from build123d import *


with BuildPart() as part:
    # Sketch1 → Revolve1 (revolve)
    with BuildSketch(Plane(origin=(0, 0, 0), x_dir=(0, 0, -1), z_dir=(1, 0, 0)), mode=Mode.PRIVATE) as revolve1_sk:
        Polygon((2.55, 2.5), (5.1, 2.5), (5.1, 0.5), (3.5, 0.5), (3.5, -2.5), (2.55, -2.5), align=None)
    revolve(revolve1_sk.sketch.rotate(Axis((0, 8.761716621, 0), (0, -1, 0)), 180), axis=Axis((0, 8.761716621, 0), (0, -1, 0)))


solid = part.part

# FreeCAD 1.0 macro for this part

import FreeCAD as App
import Part
import Sketcher
from FreeCAD import Vector
Q = App.Units.Quantity


def add_polygon(sketch, points):
    """Adds a closed chain of lines whose ends are joined by coincident constraints."""
    first, n = sketch.GeometryCount, len(points)
    for a, b in zip(points, points[1:] + points[:1]):
        sketch.addGeometry(Part.LineSegment(App.Vector(*a, 0), App.Vector(*b, 0)), False)
    for i in range(n):
        sketch.addConstraint(Sketcher.Constraint("Coincident", first + i, 2, first + (i + 1) % n, 1))

doc = App.newDocument("Part")
body = doc.addObject("PartDesign::Body", "Body")

# Sketch on YZ plane
sketch1 = body.newObject("Sketcher::SketchObject", "Sketch")
sketch1.AttachmentSupport = (doc.getObject("YZ_Plane"), [""])
sketch1.MapMode = "FlatFace"
add_polygon(sketch1, [(2.5, -5.1), (2.5, -2.55), (-2.5, -2.55), (-2.5, -3.5), (0.5, -3.5), (0.5, -5.1)])  # lines 0-5
sketch1.addConstraint(Sketcher.Constraint("Vertical", 0))
sketch1.addConstraint(Sketcher.Constraint("Horizontal", 1))
sketch1.addConstraint(Sketcher.Constraint("Vertical", 2))
sketch1.addConstraint(Sketcher.Constraint("Horizontal", 3))
sketch1.addConstraint(Sketcher.Constraint("Vertical", 4))
sketch1.addConstraint(Sketcher.Constraint("Horizontal", 5))
sketch1.addConstraint(Sketcher.Constraint("DistanceX", 1, 2, 1, 1, Q("5 mm")))
sketch1.addConstraint(Sketcher.Constraint("DistanceX", 3, 1, 3, 2, Q("3 mm")))
sketch1.addConstraint(Sketcher.Constraint("DistanceY", 4, 2, 4, 1, Q("1.6 mm")))
sketch1.addConstraint(Sketcher.Constraint("DistanceY", 0, 1, 0, 2, Q("2.55 mm")))
sketch1.addConstraint(Sketcher.Constraint("DistanceX", -1, 1, 0, 2, Q("2.5 mm")))
sketch1.addConstraint(Sketcher.Constraint("DistanceY", 2, 2, -1, 1, Q("3.5 mm")))
revolution = body.newObject("PartDesign::Revolution", "Revolution")
revolution.Profile = sketch1
revolution.ReferenceAxis = (sketch1, ["H_Axis"])
revolution.Angle = 360

doc.recompute()
